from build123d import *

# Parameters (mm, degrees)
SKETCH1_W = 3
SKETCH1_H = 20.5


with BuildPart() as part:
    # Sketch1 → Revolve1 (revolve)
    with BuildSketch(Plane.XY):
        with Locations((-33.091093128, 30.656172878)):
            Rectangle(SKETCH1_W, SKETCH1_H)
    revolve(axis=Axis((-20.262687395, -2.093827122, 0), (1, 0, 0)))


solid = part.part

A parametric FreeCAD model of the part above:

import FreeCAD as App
import Part
import Sketcher

V = App.Vector
Q = App.Units.Quantity


def add_polygon(sketch, points):
    """Adds a closed chain of lines whose ends are joined by coincident constraints."""
    first, n = sketch.GeometryCount, len(points)
    for a, b in zip(points, points[1:] + points[:1]):
        sketch.addGeometry(Part.LineSegment(App.Vector(*a, 0), App.Vector(*b, 0)), False)
    for i in range(n):
        sketch.addConstraint(Sketcher.Constraint("Coincident", first + i, 2, first + (i + 1) % n, 1))

doc = App.newDocument("Part")
body = doc.addObject("PartDesign::Body", "Body")

# Sketch on XY plane
sketch1 = body.newObject("Sketcher::SketchObject", "Sketch")
sketch1.AttachmentSupport = (doc.getObject("XY_Plane"), [""])
sketch1.MapMode = "FlatFace"
add_polygon(sketch1, [(-34.591093, 40.906173), (-34.591093, 20.406173), (-31.591093, 20.406173), (-31.591093, 40.906173)])  # lines 0-3
sketch1.addGeometry(Part.LineSegment(V(-34.591093, -2.093827, 0), V(-31.591093, -2.093827, 0)), True)  # axis
sketch1.addConstraint([
    Sketcher.Constraint("Vertical", 0),
    Sketcher.Constraint("Horizontal", 1),
    Sketcher.Constraint("Vertical", 2),
    Sketcher.Constraint("Horizontal", 3),
    Sketcher.Constraint("Horizontal", 4),
    Sketcher.Constraint("Vertical", 3, 2, 4, 1),
    Sketcher.Constraint("Vertical", 2, 2, 4, 2),
    Sketcher.Constraint("DistanceX", 1, 1, 1, 2, Q("3 mm")),
    Sketcher.Constraint("DistanceY", 0, 2, 0, 1, Q("20.5 mm")),
    Sketcher.Constraint("DistanceY", 4, 1, 3, 2, Q("43 mm")),
    Sketcher.Constraint("DistanceX", 0, 2, -1, 1, Q("34.591093 mm")),
    Sketcher.Constraint("DistanceY", -1, 1, 0, 2, Q("20.406173 mm")),
])
revolution = body.newObject("PartDesign::Revolution", "Revolution")
revolution.Profile = sketch1
revolution.ReferenceAxis = (sketch1, ["Axis0"])
revolution.Angle = 360

doc.recompute()
